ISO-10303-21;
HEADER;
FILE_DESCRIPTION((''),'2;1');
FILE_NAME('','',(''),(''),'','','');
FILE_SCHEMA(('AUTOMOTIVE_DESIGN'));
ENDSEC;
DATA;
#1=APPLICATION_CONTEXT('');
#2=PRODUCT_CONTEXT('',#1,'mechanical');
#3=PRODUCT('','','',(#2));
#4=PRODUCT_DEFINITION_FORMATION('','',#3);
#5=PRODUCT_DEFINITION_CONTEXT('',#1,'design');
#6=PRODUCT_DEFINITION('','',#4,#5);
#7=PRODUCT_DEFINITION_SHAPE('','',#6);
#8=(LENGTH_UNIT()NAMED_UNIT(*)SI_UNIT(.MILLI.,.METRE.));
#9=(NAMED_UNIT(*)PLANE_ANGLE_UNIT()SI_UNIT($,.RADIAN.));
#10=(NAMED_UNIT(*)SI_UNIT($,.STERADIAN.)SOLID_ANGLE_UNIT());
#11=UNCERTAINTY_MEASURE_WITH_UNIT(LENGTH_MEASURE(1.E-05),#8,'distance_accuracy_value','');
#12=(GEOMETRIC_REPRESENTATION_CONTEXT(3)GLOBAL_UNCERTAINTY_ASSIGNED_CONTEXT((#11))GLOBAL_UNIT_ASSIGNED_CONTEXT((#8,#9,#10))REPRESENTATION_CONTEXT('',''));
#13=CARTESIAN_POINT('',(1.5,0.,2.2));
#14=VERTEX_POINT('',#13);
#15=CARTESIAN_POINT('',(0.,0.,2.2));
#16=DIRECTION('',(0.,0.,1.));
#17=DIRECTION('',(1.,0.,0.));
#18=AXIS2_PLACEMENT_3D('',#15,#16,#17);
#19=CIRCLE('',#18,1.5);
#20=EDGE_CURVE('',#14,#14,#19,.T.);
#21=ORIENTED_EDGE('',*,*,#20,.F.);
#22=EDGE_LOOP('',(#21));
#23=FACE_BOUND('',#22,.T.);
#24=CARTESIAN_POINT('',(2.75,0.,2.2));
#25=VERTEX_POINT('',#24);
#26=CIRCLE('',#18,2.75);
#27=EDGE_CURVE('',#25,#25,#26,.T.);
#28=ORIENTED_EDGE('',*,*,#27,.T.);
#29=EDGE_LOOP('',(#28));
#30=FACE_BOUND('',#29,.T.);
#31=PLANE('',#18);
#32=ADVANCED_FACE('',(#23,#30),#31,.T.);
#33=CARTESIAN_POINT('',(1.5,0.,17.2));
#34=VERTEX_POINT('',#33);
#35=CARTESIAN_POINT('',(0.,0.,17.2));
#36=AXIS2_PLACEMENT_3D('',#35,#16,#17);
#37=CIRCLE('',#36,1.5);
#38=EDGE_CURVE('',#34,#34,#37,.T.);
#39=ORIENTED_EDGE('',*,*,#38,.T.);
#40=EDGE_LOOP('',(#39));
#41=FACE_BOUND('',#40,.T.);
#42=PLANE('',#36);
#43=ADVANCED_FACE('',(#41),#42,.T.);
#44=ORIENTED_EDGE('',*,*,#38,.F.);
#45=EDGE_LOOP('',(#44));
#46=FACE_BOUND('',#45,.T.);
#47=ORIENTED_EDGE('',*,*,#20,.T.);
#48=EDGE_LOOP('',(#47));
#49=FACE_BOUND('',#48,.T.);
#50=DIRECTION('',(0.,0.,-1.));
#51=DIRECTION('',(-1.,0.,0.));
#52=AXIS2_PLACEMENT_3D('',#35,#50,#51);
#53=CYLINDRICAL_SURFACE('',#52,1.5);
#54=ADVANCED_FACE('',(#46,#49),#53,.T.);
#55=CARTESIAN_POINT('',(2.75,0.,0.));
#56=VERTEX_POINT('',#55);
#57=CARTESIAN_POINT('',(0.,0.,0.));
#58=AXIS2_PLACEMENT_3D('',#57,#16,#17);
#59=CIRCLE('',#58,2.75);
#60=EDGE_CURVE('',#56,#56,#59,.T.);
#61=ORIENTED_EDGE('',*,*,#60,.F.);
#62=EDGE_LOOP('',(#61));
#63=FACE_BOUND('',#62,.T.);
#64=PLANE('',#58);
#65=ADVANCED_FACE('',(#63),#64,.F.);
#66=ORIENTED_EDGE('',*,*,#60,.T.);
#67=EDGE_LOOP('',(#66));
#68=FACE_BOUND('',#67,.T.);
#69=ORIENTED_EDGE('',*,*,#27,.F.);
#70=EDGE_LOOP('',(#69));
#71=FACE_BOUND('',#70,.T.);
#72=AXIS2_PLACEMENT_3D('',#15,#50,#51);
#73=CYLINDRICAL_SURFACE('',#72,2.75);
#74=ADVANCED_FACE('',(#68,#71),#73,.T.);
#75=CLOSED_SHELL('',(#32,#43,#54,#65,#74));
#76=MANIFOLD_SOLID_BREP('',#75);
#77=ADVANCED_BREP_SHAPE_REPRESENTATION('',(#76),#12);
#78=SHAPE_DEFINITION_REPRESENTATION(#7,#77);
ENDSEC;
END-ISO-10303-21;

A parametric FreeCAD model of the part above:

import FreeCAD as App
import Part
import Sketcher

doc = App.newDocument("Part")
body = doc.addObject("PartDesign::Body", "Body")

# Sketch on XY plane
sketch1 = body.newObject("Sketcher::SketchObject", "Sketch")
sketch1.AttachmentSupport = (doc.getObject("XY_Plane"), [""])
sketch1.MapMode = "FlatFace"
sketch1.addGeometry(Part.Circle(App.Vector(0, 0, 0), App.Vector(0, 0, 1), 2.8), False)
sketch1.addConstraint(Sketcher.Constraint("Coincident", 0, 3, -1, 1))
sketch1.addConstraint(Sketcher.Constraint("Diameter", 0, 5.5))
pad1 = body.newObject("PartDesign::Pad", "Pad")
pad1.Profile = sketch1
pad1.Length = 2.2

# Sketch on XY plane
sketch2 = body.newObject("Sketcher::SketchObject", "Sketch001")
sketch2.AttachmentSupport = (doc.getObject("XY_Plane"), [""])
sketch2.MapMode = "FlatFace"
sketch2.AttachmentOffset = App.Placement(App.Vector(0, 0, 2.2), App.Rotation())
sketch2.addGeometry(Part.Circle(App.Vector(0, 0, 0), App.Vector(0, 0, 1), 1.5), False)
sketch2.addConstraint(Sketcher.Constraint("Coincident", 0, 3, -1, 1))
sketch2.addConstraint(Sketcher.Constraint("Diameter", 0, 3.0))
pad2 = body.newObject("PartDesign::Pad", "Pad001")
pad2.Profile = sketch2
pad2.Length = 15

doc.recompute()
